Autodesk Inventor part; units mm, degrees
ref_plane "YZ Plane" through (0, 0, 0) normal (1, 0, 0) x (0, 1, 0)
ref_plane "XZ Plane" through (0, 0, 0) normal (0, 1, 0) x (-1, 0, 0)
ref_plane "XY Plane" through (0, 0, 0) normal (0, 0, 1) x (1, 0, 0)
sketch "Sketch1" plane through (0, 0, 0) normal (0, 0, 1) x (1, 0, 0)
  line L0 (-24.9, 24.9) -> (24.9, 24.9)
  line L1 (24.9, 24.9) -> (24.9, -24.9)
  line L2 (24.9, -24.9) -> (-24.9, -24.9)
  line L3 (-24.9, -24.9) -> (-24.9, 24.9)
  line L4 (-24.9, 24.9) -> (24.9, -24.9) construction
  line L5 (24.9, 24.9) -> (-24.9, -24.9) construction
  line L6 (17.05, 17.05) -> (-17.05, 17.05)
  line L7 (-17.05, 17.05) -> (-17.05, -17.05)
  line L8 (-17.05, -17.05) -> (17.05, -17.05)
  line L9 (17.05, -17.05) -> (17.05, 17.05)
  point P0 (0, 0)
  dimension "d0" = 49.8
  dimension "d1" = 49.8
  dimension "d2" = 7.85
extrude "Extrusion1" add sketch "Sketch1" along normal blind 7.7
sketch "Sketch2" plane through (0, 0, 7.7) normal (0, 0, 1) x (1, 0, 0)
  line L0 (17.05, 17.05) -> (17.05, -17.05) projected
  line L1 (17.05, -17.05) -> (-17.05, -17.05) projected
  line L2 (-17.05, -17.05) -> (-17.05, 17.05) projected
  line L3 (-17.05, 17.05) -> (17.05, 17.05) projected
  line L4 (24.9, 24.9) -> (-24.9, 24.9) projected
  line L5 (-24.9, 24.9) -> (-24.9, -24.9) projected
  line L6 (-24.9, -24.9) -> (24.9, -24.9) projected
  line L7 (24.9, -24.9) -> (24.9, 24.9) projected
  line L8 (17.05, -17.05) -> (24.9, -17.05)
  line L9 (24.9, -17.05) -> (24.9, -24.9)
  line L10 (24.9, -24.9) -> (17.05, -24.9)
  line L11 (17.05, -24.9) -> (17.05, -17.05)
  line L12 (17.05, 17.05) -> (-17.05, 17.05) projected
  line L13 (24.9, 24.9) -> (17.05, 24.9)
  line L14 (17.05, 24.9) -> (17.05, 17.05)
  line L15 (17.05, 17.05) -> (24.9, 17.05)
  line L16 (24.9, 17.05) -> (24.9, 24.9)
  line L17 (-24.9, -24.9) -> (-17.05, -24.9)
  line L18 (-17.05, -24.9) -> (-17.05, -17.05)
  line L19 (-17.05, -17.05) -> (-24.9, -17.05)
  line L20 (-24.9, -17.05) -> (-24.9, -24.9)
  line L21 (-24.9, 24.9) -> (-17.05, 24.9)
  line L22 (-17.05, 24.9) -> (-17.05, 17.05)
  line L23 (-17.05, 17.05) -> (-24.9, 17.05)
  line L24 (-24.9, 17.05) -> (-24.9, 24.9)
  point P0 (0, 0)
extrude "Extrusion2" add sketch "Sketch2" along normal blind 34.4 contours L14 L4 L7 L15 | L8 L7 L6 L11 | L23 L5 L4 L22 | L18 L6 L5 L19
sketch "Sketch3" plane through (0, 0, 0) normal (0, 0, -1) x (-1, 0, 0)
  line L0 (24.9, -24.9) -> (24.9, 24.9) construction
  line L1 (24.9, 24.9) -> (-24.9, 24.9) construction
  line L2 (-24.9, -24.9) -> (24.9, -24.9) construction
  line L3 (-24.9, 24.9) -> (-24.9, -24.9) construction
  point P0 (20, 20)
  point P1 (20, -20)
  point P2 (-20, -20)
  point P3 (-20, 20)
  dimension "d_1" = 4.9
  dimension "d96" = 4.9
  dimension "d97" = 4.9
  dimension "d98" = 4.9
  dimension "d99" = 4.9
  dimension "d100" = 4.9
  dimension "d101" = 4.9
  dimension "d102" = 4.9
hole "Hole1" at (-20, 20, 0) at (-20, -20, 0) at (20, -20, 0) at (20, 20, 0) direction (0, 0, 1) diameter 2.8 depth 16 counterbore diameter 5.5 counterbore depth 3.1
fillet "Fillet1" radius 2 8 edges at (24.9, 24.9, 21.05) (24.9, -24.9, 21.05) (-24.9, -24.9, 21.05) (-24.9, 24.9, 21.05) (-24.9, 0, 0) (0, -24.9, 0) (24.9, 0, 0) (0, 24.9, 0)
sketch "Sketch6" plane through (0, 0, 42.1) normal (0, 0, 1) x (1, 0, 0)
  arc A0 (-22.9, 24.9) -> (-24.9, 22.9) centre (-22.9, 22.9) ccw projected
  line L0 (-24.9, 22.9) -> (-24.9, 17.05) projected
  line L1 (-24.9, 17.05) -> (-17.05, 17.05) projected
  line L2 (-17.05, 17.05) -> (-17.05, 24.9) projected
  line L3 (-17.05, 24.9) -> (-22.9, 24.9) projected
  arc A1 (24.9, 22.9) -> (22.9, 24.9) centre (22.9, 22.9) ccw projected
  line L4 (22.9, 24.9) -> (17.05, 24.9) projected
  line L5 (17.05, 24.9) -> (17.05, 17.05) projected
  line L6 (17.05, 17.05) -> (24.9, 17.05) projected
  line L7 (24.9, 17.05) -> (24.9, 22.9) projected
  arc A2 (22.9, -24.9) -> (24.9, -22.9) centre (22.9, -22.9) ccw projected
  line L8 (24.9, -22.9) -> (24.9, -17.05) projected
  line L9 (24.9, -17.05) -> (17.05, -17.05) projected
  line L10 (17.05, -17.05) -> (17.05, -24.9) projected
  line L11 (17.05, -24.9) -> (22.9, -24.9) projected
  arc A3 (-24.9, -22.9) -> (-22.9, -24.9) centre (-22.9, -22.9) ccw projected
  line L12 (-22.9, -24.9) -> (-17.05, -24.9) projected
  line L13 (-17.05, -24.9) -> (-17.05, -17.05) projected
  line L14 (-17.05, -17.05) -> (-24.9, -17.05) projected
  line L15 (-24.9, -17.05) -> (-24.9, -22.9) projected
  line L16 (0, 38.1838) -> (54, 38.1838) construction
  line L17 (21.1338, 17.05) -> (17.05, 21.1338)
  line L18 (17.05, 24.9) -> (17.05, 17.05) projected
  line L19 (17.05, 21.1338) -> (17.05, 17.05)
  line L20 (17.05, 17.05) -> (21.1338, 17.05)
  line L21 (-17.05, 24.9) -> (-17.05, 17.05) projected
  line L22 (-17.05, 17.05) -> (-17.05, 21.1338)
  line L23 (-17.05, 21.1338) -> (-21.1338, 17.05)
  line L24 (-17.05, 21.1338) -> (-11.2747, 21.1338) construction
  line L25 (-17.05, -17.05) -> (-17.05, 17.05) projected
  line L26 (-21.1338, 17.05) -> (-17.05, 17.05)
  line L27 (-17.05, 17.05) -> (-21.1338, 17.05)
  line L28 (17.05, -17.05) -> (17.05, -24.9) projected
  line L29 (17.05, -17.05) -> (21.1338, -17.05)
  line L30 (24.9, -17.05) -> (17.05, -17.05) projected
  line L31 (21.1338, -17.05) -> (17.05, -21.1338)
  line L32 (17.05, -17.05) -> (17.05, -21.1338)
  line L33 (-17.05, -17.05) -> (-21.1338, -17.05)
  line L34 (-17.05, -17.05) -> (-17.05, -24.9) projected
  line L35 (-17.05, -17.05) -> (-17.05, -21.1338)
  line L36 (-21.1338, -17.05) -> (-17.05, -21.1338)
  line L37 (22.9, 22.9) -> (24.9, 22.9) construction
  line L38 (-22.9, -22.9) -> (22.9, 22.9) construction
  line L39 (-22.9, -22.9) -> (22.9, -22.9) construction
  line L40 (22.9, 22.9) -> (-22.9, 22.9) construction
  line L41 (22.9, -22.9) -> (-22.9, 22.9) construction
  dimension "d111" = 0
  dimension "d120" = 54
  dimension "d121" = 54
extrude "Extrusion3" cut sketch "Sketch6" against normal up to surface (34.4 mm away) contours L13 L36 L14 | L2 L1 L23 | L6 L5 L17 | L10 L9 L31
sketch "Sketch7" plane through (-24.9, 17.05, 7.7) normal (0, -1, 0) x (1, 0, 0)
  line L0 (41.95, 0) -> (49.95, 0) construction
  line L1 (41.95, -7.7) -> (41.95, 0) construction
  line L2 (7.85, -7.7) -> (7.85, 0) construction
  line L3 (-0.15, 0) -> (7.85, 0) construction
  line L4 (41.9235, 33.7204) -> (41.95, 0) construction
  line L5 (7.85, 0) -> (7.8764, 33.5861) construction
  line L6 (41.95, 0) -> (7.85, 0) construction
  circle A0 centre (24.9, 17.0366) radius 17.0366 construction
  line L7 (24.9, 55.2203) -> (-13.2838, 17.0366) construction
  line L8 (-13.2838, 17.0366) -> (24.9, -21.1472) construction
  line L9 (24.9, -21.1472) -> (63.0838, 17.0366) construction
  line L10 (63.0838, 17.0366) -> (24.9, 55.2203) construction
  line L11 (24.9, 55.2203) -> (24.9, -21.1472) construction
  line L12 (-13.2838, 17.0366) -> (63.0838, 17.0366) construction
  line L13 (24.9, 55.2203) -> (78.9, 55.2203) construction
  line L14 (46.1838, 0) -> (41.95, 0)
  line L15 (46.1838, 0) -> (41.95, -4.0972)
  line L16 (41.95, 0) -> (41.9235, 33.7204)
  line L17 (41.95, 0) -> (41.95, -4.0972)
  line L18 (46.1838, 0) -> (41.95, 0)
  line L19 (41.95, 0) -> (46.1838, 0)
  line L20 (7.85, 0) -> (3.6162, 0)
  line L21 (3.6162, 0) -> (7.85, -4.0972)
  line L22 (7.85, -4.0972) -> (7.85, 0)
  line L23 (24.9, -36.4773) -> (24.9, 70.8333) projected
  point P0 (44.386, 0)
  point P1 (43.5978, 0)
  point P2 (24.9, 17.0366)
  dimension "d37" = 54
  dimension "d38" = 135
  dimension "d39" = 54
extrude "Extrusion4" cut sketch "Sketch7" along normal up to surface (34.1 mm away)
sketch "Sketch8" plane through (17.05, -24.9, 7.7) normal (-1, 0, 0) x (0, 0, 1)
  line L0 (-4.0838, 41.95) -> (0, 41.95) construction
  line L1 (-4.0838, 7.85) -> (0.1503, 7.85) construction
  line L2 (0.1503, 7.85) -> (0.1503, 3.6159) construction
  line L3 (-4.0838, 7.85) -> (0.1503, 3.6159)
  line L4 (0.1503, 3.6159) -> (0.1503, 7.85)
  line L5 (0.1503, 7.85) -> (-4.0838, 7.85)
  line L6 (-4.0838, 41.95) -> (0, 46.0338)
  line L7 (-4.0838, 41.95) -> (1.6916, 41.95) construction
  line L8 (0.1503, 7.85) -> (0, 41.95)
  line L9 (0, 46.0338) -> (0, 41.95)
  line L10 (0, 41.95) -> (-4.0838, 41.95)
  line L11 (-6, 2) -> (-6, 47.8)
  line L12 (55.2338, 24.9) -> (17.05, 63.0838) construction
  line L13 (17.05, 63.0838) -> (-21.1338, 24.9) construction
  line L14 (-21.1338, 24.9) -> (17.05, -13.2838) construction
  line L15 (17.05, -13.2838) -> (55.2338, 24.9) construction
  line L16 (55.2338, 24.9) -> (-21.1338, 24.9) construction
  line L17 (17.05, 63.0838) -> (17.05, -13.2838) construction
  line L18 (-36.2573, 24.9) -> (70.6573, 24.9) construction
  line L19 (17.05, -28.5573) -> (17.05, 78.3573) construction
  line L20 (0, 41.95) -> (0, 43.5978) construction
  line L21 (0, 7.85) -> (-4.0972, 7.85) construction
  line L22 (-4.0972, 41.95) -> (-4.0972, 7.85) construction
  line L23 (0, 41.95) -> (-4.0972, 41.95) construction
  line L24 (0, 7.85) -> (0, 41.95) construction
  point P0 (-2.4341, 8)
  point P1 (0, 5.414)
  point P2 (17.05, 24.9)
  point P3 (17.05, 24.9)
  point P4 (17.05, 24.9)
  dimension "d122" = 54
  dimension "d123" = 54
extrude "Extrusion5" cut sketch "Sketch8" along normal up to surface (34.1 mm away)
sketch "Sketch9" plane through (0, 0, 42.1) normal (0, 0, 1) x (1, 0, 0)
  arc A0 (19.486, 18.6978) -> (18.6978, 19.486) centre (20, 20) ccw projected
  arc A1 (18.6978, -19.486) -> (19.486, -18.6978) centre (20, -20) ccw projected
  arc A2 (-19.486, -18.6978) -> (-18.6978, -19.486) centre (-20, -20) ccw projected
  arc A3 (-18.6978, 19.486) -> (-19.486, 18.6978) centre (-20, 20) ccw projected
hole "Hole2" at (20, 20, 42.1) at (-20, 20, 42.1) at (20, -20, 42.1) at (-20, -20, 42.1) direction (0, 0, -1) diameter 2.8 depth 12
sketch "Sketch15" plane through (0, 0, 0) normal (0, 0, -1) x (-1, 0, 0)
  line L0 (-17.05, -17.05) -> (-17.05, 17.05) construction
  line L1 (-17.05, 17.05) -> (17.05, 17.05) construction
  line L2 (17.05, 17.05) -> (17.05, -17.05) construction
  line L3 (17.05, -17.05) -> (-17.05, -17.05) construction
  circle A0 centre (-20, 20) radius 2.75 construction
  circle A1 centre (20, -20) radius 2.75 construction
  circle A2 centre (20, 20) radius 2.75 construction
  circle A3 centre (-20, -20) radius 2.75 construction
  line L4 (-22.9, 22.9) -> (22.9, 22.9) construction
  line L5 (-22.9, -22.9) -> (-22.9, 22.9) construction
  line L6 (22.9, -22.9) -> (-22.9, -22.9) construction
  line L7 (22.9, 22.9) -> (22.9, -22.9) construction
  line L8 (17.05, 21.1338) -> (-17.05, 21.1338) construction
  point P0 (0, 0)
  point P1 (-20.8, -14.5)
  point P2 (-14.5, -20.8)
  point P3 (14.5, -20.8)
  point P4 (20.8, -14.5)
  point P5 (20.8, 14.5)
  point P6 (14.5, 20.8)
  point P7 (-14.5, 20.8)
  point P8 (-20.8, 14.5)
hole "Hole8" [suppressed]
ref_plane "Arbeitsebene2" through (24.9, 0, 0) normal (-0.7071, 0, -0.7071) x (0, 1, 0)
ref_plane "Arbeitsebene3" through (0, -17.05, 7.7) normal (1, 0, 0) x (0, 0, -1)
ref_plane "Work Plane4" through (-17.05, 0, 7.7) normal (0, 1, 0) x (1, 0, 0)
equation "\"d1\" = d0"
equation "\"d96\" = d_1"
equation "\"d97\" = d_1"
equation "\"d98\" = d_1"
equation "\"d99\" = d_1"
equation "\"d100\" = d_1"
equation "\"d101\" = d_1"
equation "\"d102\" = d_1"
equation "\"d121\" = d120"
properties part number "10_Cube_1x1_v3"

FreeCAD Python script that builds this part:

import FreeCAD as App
import Part
import Sketcher

V = App.Vector
Q = App.Units.Quantity


def edges_at(feature, points):
    """Names of the edges that pass closest to the given points."""
    edges = feature.Shape.Edges
    near = lambda p: min(range(len(edges)), key=lambda i: edges[i].distToShape(Part.Vertex(*p))[0])
    return sorted({f"Edge{near(p) + 1}" for p in points})


def add_polygon(sketch, points):
    """Adds a closed chain of lines whose ends are joined by coincident constraints."""
    first, n = sketch.GeometryCount, len(points)
    for a, b in zip(points, points[1:] + points[:1]):
        sketch.addGeometry(Part.LineSegment(App.Vector(*a, 0), App.Vector(*b, 0)), False)
    for i in range(n):
        sketch.addConstraint(Sketcher.Constraint("Coincident", first + i, 2, first + (i + 1) % n, 1))

doc = App.newDocument("Part")
body = doc.addObject("PartDesign::Body", "Body")

# Sketch on XY plane
sketch1 = body.newObject("Sketcher::SketchObject", "Sketch")
sketch1.AttachmentSupport = (doc.getObject("XY_Plane"), [""])
sketch1.MapMode = "FlatFace"
add_polygon(sketch1, [(24.9, 24.9), (-24.9, 24.9), (-24.9, -24.9), (24.9, -24.9)])  # lines 0-3
add_polygon(sketch1, [(-17.05, 17.05), (17.05, 17.05), (17.05, -17.05), (-17.05, -17.05)])  # lines 4-7
sketch1.addConstraint(Sketcher.Constraint("Horizontal", 0))
sketch1.addConstraint(Sketcher.Constraint("Vertical", 1))
sketch1.addConstraint(Sketcher.Constraint("Horizontal", 2))
sketch1.addConstraint(Sketcher.Constraint("Vertical", 3))
sketch1.addConstraint(Sketcher.Constraint("Horizontal", 4))
sketch1.addConstraint(Sketcher.Constraint("Vertical", 5))
sketch1.addConstraint(Sketcher.Constraint("Horizontal", 6))
sketch1.addConstraint(Sketcher.Constraint("Vertical", 7))
sketch1.addConstraint(Sketcher.Constraint("Symmetric", 0, 2, 2, 2, -1, 1))
sketch1.addConstraint(Sketcher.Constraint("Symmetric", 4, 2, 6, 2, -1, 1))
sketch1.addConstraint(Sketcher.Constraint("Equal", 2, 1))
sketch1.addConstraint(Sketcher.Constraint("Equal", 6, 5))
sketch1.addConstraint(Sketcher.Constraint("DistanceX", 0, 2, 0, 1, Q("49.8 mm")))
sketch1.addConstraint(Sketcher.Constraint("DistanceX", 4, 2, 3, 2, Q("7.85 mm")))
pad1 = body.newObject("PartDesign::Pad", "Pad")
pad1.Profile = sketch1
pad1.Length = 7.7

# Sketch on XY plane
sketch2 = body.newObject("Sketcher::SketchObject", "Sketch001")
sketch2.AttachmentSupport = (doc.getObject("XY_Plane"), [""])
sketch2.MapMode = "FlatFace"
sketch2.AttachmentOffset = App.Placement(V(0, 0, 7.7), App.Rotation())
add_polygon(sketch2, [(17.05, 24.9), (17.05, 17.05), (24.9, 17.05), (24.9, 24.9)])  # lines 0-3
add_polygon(sketch2, [(24.9, -17.05), (17.05, -17.05), (17.05, -24.9), (24.9, -24.9)])  # lines 4-7
add_polygon(sketch2, [(-24.9, 17.05), (-17.05, 17.05), (-17.05, 24.9), (-24.9, 24.9)])  # lines 8-11
add_polygon(sketch2, [(-17.05, -24.9), (-17.05, -17.05), (-24.9, -17.05), (-24.9, -24.9)])  # lines 12-15
sketch2.addConstraint(Sketcher.Constraint("Vertical", 0))
sketch2.addConstraint(Sketcher.Constraint("Horizontal", 1))
sketch2.addConstraint(Sketcher.Constraint("Vertical", 2))
sketch2.addConstraint(Sketcher.Constraint("Horizontal", 3))
sketch2.addConstraint(Sketcher.Constraint("Horizontal", 4))
sketch2.addConstraint(Sketcher.Constraint("Vertical", 5))
sketch2.addConstraint(Sketcher.Constraint("Horizontal", 6))
sketch2.addConstraint(Sketcher.Constraint("Vertical", 7))
sketch2.addConstraint(Sketcher.Constraint("Horizontal", 8))
sketch2.addConstraint(Sketcher.Constraint("Vertical", 9))
sketch2.addConstraint(Sketcher.Constraint("Horizontal", 10))
sketch2.addConstraint(Sketcher.Constraint("Vertical", 11))
sketch2.addConstraint(Sketcher.Constraint("Vertical", 12))
sketch2.addConstraint(Sketcher.Constraint("Horizontal", 13))
sketch2.addConstraint(Sketcher.Constraint("Vertical", 14))
sketch2.addConstraint(Sketcher.Constraint("Horizontal", 15))
sketch2.addConstraint(Sketcher.Constraint("Symmetric", 4, 2, 8, 2, -1, 1))
sketch2.addConstraint(Sketcher.Constraint("Symmetric", 6, 2, 10, 2, -1, 1))
sketch2.addConstraint(Sketcher.Constraint("Symmetric", 0, 2, 12, 2, -1, 1))
sketch2.addConstraint(Sketcher.Constraint("Symmetric", 2, 2, 14, 2, -1, 1))
sketch2.addConstraint(Sketcher.Constraint("Symmetric", 0, 2, 8, 2, -2))
sketch2.addConstraint(Sketcher.Constraint("Symmetric", 2, 2, 10, 2, -2))
sketch2.addConstraint(Sketcher.Constraint("Equal", 15, 0))
sketch2.addConstraint(Sketcher.Constraint("DistanceX", 1, 1, 1, 2, Q("7.85 mm")))
sketch2.addConstraint(Sketcher.Constraint("DistanceX", -1, 1, 1, 2, Q("24.9 mm")))
sketch2.addConstraint(Sketcher.Constraint("DistanceY", -1, 1, 2, 2, Q("24.9 mm")))
pad2 = body.newObject("PartDesign::Pad", "Pad001")
pad2.Profile = sketch2
pad2.Length = 34.4

# Sketch on XY plane
sketch3 = body.newObject("Sketcher::SketchObject", "Sketch002")
sketch3.AttachmentSupport = (doc.getObject("XY_Plane"), [""])
sketch3.MapMode = "FlatFace"
sketch3.addGeometry(Part.Circle(V(-20, 20, 0), V(0, 0, 1), 1.4), False)
sketch3.addGeometry(Part.Circle(V(-20, -20, 0), V(0, 0, 1), 1.4), False)
sketch3.addGeometry(Part.Circle(V(20, -20, 0), V(0, 0, 1), 1.4), False)
sketch3.addGeometry(Part.Circle(V(20, 20, 0), V(0, 0, 1), 1.4), False)
sketch3.addConstraint(Sketcher.Constraint("Equal", 0, 1))
sketch3.addConstraint(Sketcher.Constraint("Equal", 1, 2))
sketch3.addConstraint(Sketcher.Constraint("Equal", 2, 3))
sketch3.addConstraint(Sketcher.Constraint("Symmetric", 0, 3, 2, 3, -1, 1))
sketch3.addConstraint(Sketcher.Constraint("Symmetric", 1, 3, 3, 3, -1, 1))
sketch3.addConstraint(Sketcher.Constraint("Symmetric", 1, 3, 2, 3, -2))
sketch3.addConstraint(Sketcher.Constraint("Diameter", 0, Q("2.8 mm")))
sketch3.addConstraint(Sketcher.Constraint("DistanceX", 0, 3, -1, 1, Q("20 mm")))
sketch3.addConstraint(Sketcher.Constraint("DistanceY", -1, 1, 0, 3, Q("20 mm")))
doc.recompute()
hole = body.newObject("PartDesign::Hole", "Hole")
hole.Profile = sketch3
hole.ThreadType = "None"
hole.Diameter = 2.8
hole.DepthType = "Dimension"
hole.Depth = 16
hole.DrillPoint = "Flat"
hole.HoleCutType = "Counterbore"
hole.HoleCutDiameter = 5.5
hole.HoleCutDepth = 3.1
hole.Reversed = True
doc.recompute()

fillet = body.newObject("PartDesign::Fillet", "Fillet")
fillet.Base = (hole, edges_at(hole, [
    (24.9, 24.9, 21.05),
    (24.9, -24.9, 21.05),
    (-24.9, -24.9, 21.05),
    (-24.9, 24.9, 21.05),
    (-24.9, 0, 0),
    (0, -24.9, 0),
    (24.9, 0, 0),
    (0, 24.9, 0),
]))
fillet.Radius = 2

# Sketch on XY plane
sketch4 = body.newObject("Sketcher::SketchObject", "Sketch003")
sketch4.AttachmentSupport = (doc.getObject("XY_Plane"), [""])
sketch4.MapMode = "FlatFace"
sketch4.AttachmentOffset = App.Placement(V(0, 0, 42.1), App.Rotation())
add_polygon(sketch4, [(-17.05, -21.1338), (-17.05, -17.05), (-21.1338, -17.05)])  # lines 0-2
add_polygon(sketch4, [(-17.05, 17.05), (-17.05, 21.1338), (-21.1338, 17.05)])  # lines 3-5
add_polygon(sketch4, [(17.05, 17.05), (21.1338, 17.05), (17.05, 21.1338)])  # lines 6-8
add_polygon(sketch4, [(17.05, -17.05), (17.05, -21.1338), (21.1338, -17.05)])  # lines 9-11
sketch4.addConstraint(Sketcher.Constraint("Vertical", 0))
sketch4.addConstraint(Sketcher.Constraint("Horizontal", 1))
sketch4.addConstraint(Sketcher.Constraint("Vertical", 3))
sketch4.addConstraint(Sketcher.Constraint("Horizontal", 5))
sketch4.addConstraint(Sketcher.Constraint("Horizontal", 6))
sketch4.addConstraint(Sketcher.Constraint("Vertical", 8))
sketch4.addConstraint(Sketcher.Constraint("Vertical", 9))
sketch4.addConstraint(Sketcher.Constraint("Horizontal", 11))
sketch4.addConstraint(Sketcher.Constraint("Symmetric", 1, 2, 6, 2, -1, 1))
sketch4.addConstraint(Sketcher.Constraint("Symmetric", 2, 2, 7, 2, -1, 1))
sketch4.addConstraint(Sketcher.Constraint("Symmetric", 3, 2, 9, 2, -1, 1))
sketch4.addConstraint(Sketcher.Constraint("Symmetric", 4, 2, 10, 2, -1, 1))
sketch4.addConstraint(Sketcher.Constraint("Symmetric", 4, 2, 6, 2, -2))
sketch4.addConstraint(Sketcher.Constraint("Symmetric", 3, 2, 7, 2, -2))
sketch4.addConstraint(Sketcher.Constraint("Perpendicular", 2, 4))
sketch4.addConstraint(Sketcher.Constraint("DistanceY", 1, 2, 4, 2, Q("34.1 mm")))
sketch4.addConstraint(Sketcher.Constraint("DistanceX", 3, 2, 7, 2, Q("34.1 mm")))
sketch4.addConstraint(Sketcher.Constraint("DistanceX", 1, 2, 1, 1, Q("4.0838 mm")))
pocket1 = body.newObject("PartDesign::Pocket", "Pocket")
pocket1.Profile = sketch4
pocket1.Length = 34.4

# Sketch on XZ plane
sketch5 = body.newObject("Sketcher::SketchObject", "Sketch004")
sketch5.AttachmentSupport = (doc.getObject("XZ_Plane"), [""])
sketch5.MapMode = "FlatFace"
sketch5.AttachmentOffset = App.Placement(V(0, 0, -17.05), App.Rotation())
add_polygon(sketch5, [(17.05, 3.6028), (21.2838, 7.7), (17.05, 7.7)])  # lines 0-2
add_polygon(sketch5, [(-17.05, 3.6028), (-17.05, 7.7), (-21.2838, 7.7)])  # lines 3-5
sketch5.addConstraint(Sketcher.Constraint("Horizontal", 1))
sketch5.addConstraint(Sketcher.Constraint("Vertical", 2))
sketch5.addConstraint(Sketcher.Constraint("Vertical", 3))
sketch5.addConstraint(Sketcher.Constraint("Horizontal", 4))
sketch5.addConstraint(Sketcher.Constraint("Symmetric", 1, 2, 3, 2, -2))
sketch5.addConstraint(Sketcher.Constraint("Horizontal", 2, 2, 5, 2))
sketch5.addConstraint(Sketcher.Constraint("Equal", 1, 4))
sketch5.addConstraint(Sketcher.Constraint("DistanceY", -1, 1, 0, 2, Q("7.7 mm")))
sketch5.addConstraint(Sketcher.Constraint("Angle", 0, Q("44.0606 deg")))
sketch5.addConstraint(Sketcher.Constraint("DistanceX", 3, 2, 1, 2, Q("34.1 mm")))
sketch5.addConstraint(Sketcher.Constraint("DistanceX", 1, 2, 1, 1, Q("4.2338 mm")))
pocket2 = body.newObject("PartDesign::Pocket", "Pocket001")
pocket2.Profile = sketch5
pocket2.Length = 34.1
pocket2.Reversed = True

# Sketch on YZ plane
sketch6 = body.newObject("Sketcher::SketchObject", "Sketch005")
sketch6.AttachmentSupport = (doc.getObject("YZ_Plane"), [""])
sketch6.MapMode = "FlatFace"
sketch6.AttachmentOffset = App.Placement(V(0, 0, 17.05), App.Rotation())
add_polygon(sketch6, [(-17.05, 7.8503), (-17.05, 3.6162), (-21.2841, 7.8503)])  # lines 0-2
add_polygon(sketch6, [(17.05, 3.6162), (17.05, 7.7), (21.1338, 7.7)])  # lines 3-5
sketch6.addConstraint(Sketcher.Constraint("Vertical", 0))
sketch6.addConstraint(Sketcher.Constraint("Horizontal", 2))
sketch6.addConstraint(Sketcher.Constraint("Vertical", 3))
sketch6.addConstraint(Sketcher.Constraint("Horizontal", 4))
sketch6.addConstraint(Sketcher.Constraint("Symmetric", 0, 2, 5, 2, -2))
sketch6.addConstraint(Sketcher.Constraint("Perpendicular", 1, 5))
sketch6.addConstraint(Sketcher.Constraint("Equal", 2, 0))
sketch6.addConstraint(Sketcher.Constraint("DistanceY", -1, 1, 3, 2, Q("7.7 mm")))
sketch6.addConstraint(Sketcher.Constraint("DistanceX", 2, 2, 3, 2, Q("34.1 mm")))
sketch6.addConstraint(Sketcher.Constraint("DistanceX", 2, 1, 2, 2, Q("4.234 mm")))
sketch6.addConstraint(Sketcher.Constraint("DistanceX", 4, 1, 4, 2, Q("4.0838 mm")))
pocket3 = body.newObject("PartDesign::Pocket", "Pocket002")
pocket3.Profile = sketch6
pocket3.Length = 34.1

# Sketch on XY plane
sketch7 = body.newObject("Sketcher::SketchObject", "Sketch006")
sketch7.AttachmentSupport = (doc.getObject("XY_Plane"), [""])
sketch7.MapMode = "FlatFace"
sketch7.AttachmentOffset = App.Placement(V(0, 0, 42.1), App.Rotation())
sketch7.addGeometry(Part.Circle(V(20, 20, 0), V(0, 0, 1), 1.4), False)
sketch7.addGeometry(Part.Circle(V(-20, 20, 0), V(0, 0, 1), 1.4), False)
sketch7.addGeometry(Part.Circle(V(20, -20, 0), V(0, 0, 1), 1.4), False)
sketch7.addGeometry(Part.Circle(V(-20, -20, 0), V(0, 0, 1), 1.4), False)
sketch7.addConstraint(Sketcher.Constraint("Equal", 0, 1))
sketch7.addConstraint(Sketcher.Constraint("Equal", 1, 2))
sketch7.addConstraint(Sketcher.Constraint("Equal", 2, 3))
sketch7.addConstraint(Sketcher.Constraint("Symmetric", 1, 3, 2, 3, -1, 1))
sketch7.addConstraint(Sketcher.Constraint("Symmetric", 0, 3, 3, 3, -1, 1))
sketch7.addConstraint(Sketcher.Constraint("Symmetric", 0, 3, 1, 3, -2))
sketch7.addConstraint(Sketcher.Constraint("Diameter", 0, Q("2.8 mm")))
sketch7.addConstraint(Sketcher.Constraint("DistanceX", -1, 1, 0, 3, Q("20 mm")))
sketch7.addConstraint(Sketcher.Constraint("DistanceY", -1, 1, 0, 3, Q("20 mm")))
doc.recompute()
hole2 = body.newObject("PartDesign::Hole", "Hole001")
hole2.Profile = sketch7
hole2.ThreadType = "None"
hole2.Diameter = 2.8
hole2.DepthType = "Dimension"
hole2.Depth = 12
hole2.DrillPoint = "Flat"

doc.recompute()
